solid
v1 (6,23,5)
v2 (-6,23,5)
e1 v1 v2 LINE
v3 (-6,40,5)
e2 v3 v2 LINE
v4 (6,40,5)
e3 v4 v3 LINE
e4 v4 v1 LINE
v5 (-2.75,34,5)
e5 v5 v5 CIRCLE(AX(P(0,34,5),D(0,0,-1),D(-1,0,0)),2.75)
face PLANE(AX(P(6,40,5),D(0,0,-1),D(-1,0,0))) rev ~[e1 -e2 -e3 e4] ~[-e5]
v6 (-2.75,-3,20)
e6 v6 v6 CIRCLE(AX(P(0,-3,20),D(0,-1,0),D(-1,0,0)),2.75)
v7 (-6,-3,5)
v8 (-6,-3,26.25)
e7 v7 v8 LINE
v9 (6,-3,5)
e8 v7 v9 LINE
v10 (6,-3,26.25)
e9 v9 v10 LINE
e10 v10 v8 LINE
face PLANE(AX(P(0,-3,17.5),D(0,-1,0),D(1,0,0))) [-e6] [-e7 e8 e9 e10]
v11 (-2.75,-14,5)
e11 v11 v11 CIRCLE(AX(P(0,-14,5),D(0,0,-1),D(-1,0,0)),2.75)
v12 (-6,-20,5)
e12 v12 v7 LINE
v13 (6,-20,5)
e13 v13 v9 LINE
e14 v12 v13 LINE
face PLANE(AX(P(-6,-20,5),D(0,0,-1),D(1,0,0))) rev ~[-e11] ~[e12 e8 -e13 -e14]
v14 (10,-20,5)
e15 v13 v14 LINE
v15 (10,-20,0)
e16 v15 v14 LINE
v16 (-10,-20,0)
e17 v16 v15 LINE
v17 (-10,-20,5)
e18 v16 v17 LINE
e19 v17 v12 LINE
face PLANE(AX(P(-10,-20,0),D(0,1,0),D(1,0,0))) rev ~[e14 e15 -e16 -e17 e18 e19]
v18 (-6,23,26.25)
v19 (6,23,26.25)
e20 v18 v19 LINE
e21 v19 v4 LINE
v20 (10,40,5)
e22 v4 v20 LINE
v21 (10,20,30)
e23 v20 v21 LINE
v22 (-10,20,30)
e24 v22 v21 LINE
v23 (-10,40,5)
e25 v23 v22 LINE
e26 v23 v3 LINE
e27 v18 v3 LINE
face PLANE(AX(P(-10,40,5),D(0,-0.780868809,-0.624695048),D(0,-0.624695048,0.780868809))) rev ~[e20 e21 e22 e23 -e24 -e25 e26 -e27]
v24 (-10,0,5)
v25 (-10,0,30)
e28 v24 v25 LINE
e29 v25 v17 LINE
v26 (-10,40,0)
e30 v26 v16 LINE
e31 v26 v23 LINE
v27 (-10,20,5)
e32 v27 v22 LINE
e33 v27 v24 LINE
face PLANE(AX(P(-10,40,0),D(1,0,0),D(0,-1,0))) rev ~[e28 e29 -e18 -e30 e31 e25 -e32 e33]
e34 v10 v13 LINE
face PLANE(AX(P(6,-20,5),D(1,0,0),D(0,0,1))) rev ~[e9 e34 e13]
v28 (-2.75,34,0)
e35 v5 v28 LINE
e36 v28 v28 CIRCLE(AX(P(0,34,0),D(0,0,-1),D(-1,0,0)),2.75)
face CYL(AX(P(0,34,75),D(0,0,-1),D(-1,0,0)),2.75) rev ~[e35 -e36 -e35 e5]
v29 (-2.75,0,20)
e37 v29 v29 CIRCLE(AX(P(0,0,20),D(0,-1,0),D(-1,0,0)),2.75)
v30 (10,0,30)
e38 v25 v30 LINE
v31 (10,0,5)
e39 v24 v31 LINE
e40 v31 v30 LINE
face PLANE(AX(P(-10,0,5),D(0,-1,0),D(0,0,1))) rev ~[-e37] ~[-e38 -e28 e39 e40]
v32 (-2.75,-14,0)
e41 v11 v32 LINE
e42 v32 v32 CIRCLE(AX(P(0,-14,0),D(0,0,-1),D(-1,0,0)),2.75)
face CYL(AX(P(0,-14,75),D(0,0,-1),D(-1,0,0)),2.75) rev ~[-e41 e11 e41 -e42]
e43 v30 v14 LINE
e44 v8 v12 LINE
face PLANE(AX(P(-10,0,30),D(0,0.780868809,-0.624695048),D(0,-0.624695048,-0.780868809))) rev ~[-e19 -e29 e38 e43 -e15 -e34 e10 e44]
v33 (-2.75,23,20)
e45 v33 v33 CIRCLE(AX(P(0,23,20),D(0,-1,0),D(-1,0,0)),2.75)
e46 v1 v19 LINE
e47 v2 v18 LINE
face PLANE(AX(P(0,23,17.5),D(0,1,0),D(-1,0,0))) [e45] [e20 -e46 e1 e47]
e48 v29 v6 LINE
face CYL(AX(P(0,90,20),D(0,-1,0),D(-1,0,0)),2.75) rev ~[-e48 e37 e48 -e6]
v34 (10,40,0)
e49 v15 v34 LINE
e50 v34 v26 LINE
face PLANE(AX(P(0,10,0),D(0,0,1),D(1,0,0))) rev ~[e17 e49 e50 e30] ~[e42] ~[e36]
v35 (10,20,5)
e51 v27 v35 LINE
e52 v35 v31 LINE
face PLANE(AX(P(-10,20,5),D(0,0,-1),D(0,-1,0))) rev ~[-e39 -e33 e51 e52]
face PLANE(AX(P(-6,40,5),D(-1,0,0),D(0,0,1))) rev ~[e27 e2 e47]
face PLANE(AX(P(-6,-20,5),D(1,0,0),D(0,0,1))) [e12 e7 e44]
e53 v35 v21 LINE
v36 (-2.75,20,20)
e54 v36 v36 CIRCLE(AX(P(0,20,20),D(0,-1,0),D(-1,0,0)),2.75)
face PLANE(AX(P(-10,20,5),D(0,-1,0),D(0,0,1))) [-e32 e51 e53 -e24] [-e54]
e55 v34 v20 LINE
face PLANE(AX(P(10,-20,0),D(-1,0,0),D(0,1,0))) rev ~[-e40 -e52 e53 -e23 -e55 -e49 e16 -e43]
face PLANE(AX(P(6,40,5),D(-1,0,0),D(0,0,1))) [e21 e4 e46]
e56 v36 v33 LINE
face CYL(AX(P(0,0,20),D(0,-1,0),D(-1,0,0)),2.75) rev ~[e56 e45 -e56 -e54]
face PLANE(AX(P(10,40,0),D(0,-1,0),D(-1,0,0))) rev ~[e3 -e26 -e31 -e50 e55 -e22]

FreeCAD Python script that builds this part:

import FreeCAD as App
import Part
import Sketcher
from FreeCAD import Vector
Q = App.Units.Quantity


def add_polygon(sketch, points):
    """Adds a closed chain of lines whose ends are joined by coincident constraints."""
    first, n = sketch.GeometryCount, len(points)
    for a, b in zip(points, points[1:] + points[:1]):
        sketch.addGeometry(Part.LineSegment(App.Vector(*a, 0), App.Vector(*b, 0)), False)
    for i in range(n):
        sketch.addConstraint(Sketcher.Constraint("Coincident", first + i, 2, first + (i + 1) % n, 1))

doc = App.newDocument("Part")
params = doc.addObject("Spreadsheet::Sheet", "Params")
for row, (alias, value) in enumerate([
    ("sketch1_width", "20 mm"),
    ("sketch1_height", "60 mm"),
    ("pad1_length", "30 mm"),
    ("sketch2_width", "20 mm"),
    ("sketch2_height", "25 mm"),
    ("pocket1_length", "25 mm"),
    ("sketch3_width", "12 mm"),
    ("sketch3_height", "25 mm"),
    ("pocket2_length", "17 mm"),
    ("sketch4_diameter", "5.5 mm"),
    ("sketch5_diameter", "5.5 mm"),
    ("hole_diameter", "5.5 mm"),
    ("sketch6_width", "12 mm"),
    ("sketch6_height", "25 mm"),
    ("pocket4_length", "17 mm"),
    ("sketch7_diameter", "5.5 mm"),
    ("hole2_diameter", "5.5 mm"),
], start=1):
    params.set(f"A{row}", alias)
    params.set(f"B{row}", "=" + value)
    params.setAlias(f"B{row}", alias)

body = doc.addObject("PartDesign::Body", "Body")

# Sketch on XY plane
sketch1 = body.newObject("Sketcher::SketchObject", "Sketch")
sketch1.AttachmentSupport = (doc.getObject("XY_Plane"), [""])
sketch1.MapMode = "FlatFace"
add_polygon(sketch1, [(-10, -20), (10, -20), (10, 40), (-10, 40)])  # lines 0-3
sketch1.addConstraint([
    Sketcher.Constraint("Horizontal", 0),
    Sketcher.Constraint("Vertical", 1),
    Sketcher.Constraint("Horizontal", 2),
    Sketcher.Constraint("Vertical", 3),
    Sketcher.Constraint("DistanceX", 0, 1, 0, 2, Q("20 mm")),
    Sketcher.Constraint("DistanceY", 1, 1, 1, 2, Q("60 mm")),
    Sketcher.Constraint("DistanceX", -1, 1, 0, 2, Q("10 mm")),
    Sketcher.Constraint("DistanceY", 0, 2, -1, 1, Q("20 mm")),
])
sketch1.setExpression("Constraints[8]", "Params.sketch1_width")
sketch1.setExpression("Constraints[9]", "Params.sketch1_height")
pad1 = body.newObject("PartDesign::Pad", "Pad")
pad1.Profile = sketch1
pad1.setExpression("Length", "Params.pad1_length")

# Sketch on YZ plane
sketch2 = body.newObject("Sketcher::SketchObject", "Sketch001")
sketch2.AttachmentSupport = (doc.getObject("YZ_Plane"), [""])
sketch2.MapMode = "FlatFace"
sketch2.AttachmentOffset = App.Placement(Vector(0, 0, -10), App.Rotation())
add_polygon(sketch2, [(40, 5), (20, 30), (40, 30)])  # lines 0-2
add_polygon(sketch2, [(20, 30), (20, 5), (0, 5), (0, 30)])  # lines 3-6
add_polygon(sketch2, [(-20, 30), (0, 30), (-20, 5)])  # lines 7-9
sketch2.addConstraint([
    Sketcher.Constraint("Horizontal", 1),
    Sketcher.Constraint("Vertical", 2),
    Sketcher.Constraint("Vertical", 3),
    Sketcher.Constraint("Horizontal", 4),
    Sketcher.Constraint("Vertical", 5),
    Sketcher.Constraint("Horizontal", 6),
    Sketcher.Constraint("Horizontal", 7),
    Sketcher.Constraint("Vertical", 9),
    Sketcher.Constraint("Coincident", 6, 2, 0, 2),
    Sketcher.Constraint("Coincident", 7, 2, 5, 2),
    Sketcher.Constraint("Symmetric", 3, 2, 8, 2, -2),
    Sketcher.Constraint("PointOnObject", 4, 2, -2),
    Sketcher.Constraint("Horizontal", 2, 2, 3, 2),
    Sketcher.Constraint("Equal", 1, 4),
    Sketcher.Constraint("DistanceX", 1, 1, 1, 2, Q("20 mm")),
    Sketcher.Constraint("DistanceY", 2, 2, 2, 1, Q("25 mm")),
    Sketcher.Constraint("DistanceY", -1, 1, 0, 2, Q("30 mm")),
])
sketch2.setExpression("Constraints[24]", "Params.sketch2_width")
sketch2.setExpression("Constraints[25]", "Params.sketch2_height")
pocket1 = body.newObject("PartDesign::Pocket", "Pocket")
pocket1.Profile = sketch2
pocket1.setExpression("Length", "Params.pocket1_length")
pocket1.Reversed = True

# Sketch on XZ plane
sketch3 = body.newObject("Sketcher::SketchObject", "Sketch002")
sketch3.AttachmentSupport = (doc.getObject("XZ_Plane"), [""])
sketch3.MapMode = "FlatFace"
sketch3.AttachmentOffset = App.Placement(Vector(0, 0, -40), App.Rotation())
add_polygon(sketch3, [(6, 30), (6, 5), (-6, 5), (-6, 30)])  # lines 0-3
sketch3.addConstraint([
    Sketcher.Constraint("Vertical", 0),
    Sketcher.Constraint("Horizontal", 1),
    Sketcher.Constraint("Vertical", 2),
    Sketcher.Constraint("Horizontal", 3),
    Sketcher.Constraint("DistanceX", 1, 2, 1, 1, Q("12 mm")),
    Sketcher.Constraint("DistanceY", 0, 2, 0, 1, Q("25 mm")),
    Sketcher.Constraint("DistanceX", -1, 1, 0, 2, Q("6 mm")),
    Sketcher.Constraint("DistanceY", -1, 1, 0, 2, Q("5 mm")),
])
sketch3.setExpression("Constraints[8]", "Params.sketch3_width")
sketch3.setExpression("Constraints[9]", "Params.sketch3_height")
pocket2 = body.newObject("PartDesign::Pocket", "Pocket001")
pocket2.Profile = sketch3
pocket2.setExpression("Length", "Params.pocket2_length")
pocket2.Reversed = True

# Sketch on XZ plane
sketch4 = body.newObject("Sketcher::SketchObject", "Sketch003")
sketch4.AttachmentSupport = (doc.getObject("XZ_Plane"), [""])
sketch4.MapMode = "FlatFace"
sketch4.addGeometry(Part.Circle(Vector(0, 20, 0), Vector(0, 0, 1), 2.75), False)
sketch4.addConstraint([
    Sketcher.Constraint("PointOnObject", 0, 3, -2),
    Sketcher.Constraint("Diameter", 0, Q("5.5 mm")),
    Sketcher.Constraint("DistanceY", -1, 1, 0, 3, Q("20 mm")),
])
sketch4.setExpression("Constraints[1]", "Params.sketch4_diameter")
pocket3 = body.newObject("PartDesign::Pocket", "Pocket002")
pocket3.Profile = sketch4
pocket3.Type = "ThroughAll"

# Sketch on XZ plane
sketch5 = body.newObject("Sketcher::SketchObject", "Sketch004")
sketch5.AttachmentSupport = (doc.getObject("XZ_Plane"), [""])
sketch5.MapMode = "FlatFace"
sketch5.AttachmentOffset = App.Placement(Vector(0, 0, -20), App.Rotation())
sketch5.addGeometry(Part.Circle(Vector(0, 20, 0), Vector(0, 0, 1), 2.75), False)
sketch5.addConstraint([
    Sketcher.Constraint("PointOnObject", 0, 3, -2),
    Sketcher.Constraint("Diameter", 0, Q("5.5 mm")),
    Sketcher.Constraint("DistanceY", -1, 1, 0, 3, Q("20 mm")),
])
sketch5.setExpression("Constraints[1]", "Params.sketch5_diameter")
doc.recompute()
hole = body.newObject("PartDesign::Hole", "Hole")
hole.Profile = sketch5
hole.ThreadType = "None"
hole.setExpression("Diameter", "Params.hole_diameter")
hole.DepthType = "ThroughAll"
hole.Reversed = True

# Sketch on XZ plane
sketch6 = body.newObject("Sketcher::SketchObject", "Sketch005")
sketch6.AttachmentSupport = (doc.getObject("XZ_Plane"), [""])
sketch6.MapMode = "FlatFace"
sketch6.AttachmentOffset = App.Placement(Vector(0, 0, 20), App.Rotation())
add_polygon(sketch6, [(-6, 30), (-6, 5), (6, 5), (6, 30)])  # lines 0-3
sketch6.addConstraint([
    Sketcher.Constraint("Vertical", 0),
    Sketcher.Constraint("Horizontal", 1),
    Sketcher.Constraint("Vertical", 2),
    Sketcher.Constraint("Horizontal", 3),
    Sketcher.Constraint("DistanceX", 1, 1, 1, 2, Q("12 mm")),
    Sketcher.Constraint("DistanceY", 0, 2, 0, 1, Q("25 mm")),
    Sketcher.Constraint("DistanceX", 0, 2, -1, 1, Q("6 mm")),
    Sketcher.Constraint("DistanceY", -1, 1, 0, 2, Q("5 mm")),
])
sketch6.setExpression("Constraints[8]", "Params.sketch6_width")
sketch6.setExpression("Constraints[9]", "Params.sketch6_height")
pocket4 = body.newObject("PartDesign::Pocket", "Pocket003")
pocket4.Profile = sketch6
pocket4.setExpression("Length", "Params.pocket4_length")

# Sketch on XY plane
sketch7 = body.newObject("Sketcher::SketchObject", "Sketch006")
sketch7.AttachmentSupport = (doc.getObject("XY_Plane"), [""])
sketch7.MapMode = "FlatFace"
sketch7.AttachmentOffset = App.Placement(Vector(0, 0, 5), App.Rotation())
sketch7.addGeometry([
    Part.Circle(Vector(0, 34, 0), Vector(0, 0, 1), 2.75),
    Part.Circle(Vector(0, -14, 0), Vector(0, 0, 1), 2.75),
], False)
sketch7.addConstraint([
    Sketcher.Constraint("Equal", 0, 1),
    Sketcher.Constraint("PointOnObject", 0, 3, -2),
    Sketcher.Constraint("PointOnObject", 1, 3, -2),
    Sketcher.Constraint("Diameter", 0, Q("5.5 mm")),
    Sketcher.Constraint("DistanceY", -1, 1, 0, 3, Q("34 mm")),
    Sketcher.Constraint("DistanceY", 1, 3, -1, 1, Q("14 mm")),
])
sketch7.setExpression("Constraints[3]", "Params.sketch7_diameter")
doc.recompute()
hole2 = body.newObject("PartDesign::Hole", "Hole001")
hole2.Profile = sketch7
hole2.ThreadType = "None"
hole2.setExpression("Diameter", "Params.hole2_diameter")
hole2.DepthType = "ThroughAll"

doc.recompute()
